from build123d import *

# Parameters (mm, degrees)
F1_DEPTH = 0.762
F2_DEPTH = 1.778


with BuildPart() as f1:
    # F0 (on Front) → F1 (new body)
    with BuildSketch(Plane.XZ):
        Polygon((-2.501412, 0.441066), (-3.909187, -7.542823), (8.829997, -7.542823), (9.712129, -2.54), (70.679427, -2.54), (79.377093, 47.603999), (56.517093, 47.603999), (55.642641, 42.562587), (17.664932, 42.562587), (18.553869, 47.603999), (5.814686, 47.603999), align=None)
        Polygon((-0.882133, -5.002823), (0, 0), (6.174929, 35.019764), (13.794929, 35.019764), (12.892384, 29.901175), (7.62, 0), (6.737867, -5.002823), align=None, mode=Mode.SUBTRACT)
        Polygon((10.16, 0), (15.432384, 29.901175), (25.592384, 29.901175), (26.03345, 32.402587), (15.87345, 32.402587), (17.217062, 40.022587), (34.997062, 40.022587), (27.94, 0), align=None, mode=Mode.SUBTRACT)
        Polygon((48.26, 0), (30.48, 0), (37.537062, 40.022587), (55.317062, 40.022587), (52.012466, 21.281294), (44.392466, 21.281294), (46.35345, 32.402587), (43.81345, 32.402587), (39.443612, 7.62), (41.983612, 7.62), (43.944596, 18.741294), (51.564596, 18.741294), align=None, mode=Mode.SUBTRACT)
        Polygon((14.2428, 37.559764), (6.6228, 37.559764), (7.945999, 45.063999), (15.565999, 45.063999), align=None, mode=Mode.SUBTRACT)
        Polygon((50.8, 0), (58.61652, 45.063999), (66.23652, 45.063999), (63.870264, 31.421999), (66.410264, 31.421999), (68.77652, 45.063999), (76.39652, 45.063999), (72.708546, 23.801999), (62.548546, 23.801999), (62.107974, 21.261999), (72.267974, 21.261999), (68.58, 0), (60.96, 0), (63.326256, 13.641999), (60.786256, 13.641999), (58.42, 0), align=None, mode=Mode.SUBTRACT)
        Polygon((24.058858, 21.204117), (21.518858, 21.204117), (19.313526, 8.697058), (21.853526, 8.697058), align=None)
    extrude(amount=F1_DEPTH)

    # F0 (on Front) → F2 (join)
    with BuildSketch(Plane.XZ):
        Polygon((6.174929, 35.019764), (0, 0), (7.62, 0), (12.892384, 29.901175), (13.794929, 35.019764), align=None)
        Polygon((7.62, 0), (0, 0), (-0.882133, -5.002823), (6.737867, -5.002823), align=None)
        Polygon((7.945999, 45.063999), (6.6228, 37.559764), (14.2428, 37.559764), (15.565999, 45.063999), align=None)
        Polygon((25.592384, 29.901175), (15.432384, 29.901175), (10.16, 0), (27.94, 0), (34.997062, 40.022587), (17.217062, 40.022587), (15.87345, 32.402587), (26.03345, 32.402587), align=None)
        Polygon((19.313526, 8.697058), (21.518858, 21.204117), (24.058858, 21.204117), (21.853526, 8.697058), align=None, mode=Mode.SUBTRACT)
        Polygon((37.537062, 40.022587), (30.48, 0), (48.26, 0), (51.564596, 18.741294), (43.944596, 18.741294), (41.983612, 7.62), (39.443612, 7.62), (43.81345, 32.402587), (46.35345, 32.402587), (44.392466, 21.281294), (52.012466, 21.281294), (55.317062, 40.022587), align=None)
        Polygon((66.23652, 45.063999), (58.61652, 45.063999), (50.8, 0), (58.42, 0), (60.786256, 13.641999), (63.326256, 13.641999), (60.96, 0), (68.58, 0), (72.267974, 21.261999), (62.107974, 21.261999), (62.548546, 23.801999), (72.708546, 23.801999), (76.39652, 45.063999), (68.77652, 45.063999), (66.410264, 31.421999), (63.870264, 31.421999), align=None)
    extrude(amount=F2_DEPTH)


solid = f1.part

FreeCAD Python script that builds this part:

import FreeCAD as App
import Part
import Sketcher
from FreeCAD import Vector
Q = App.Units.Quantity


def add_polygon(sketch, points):
    """Adds a closed chain of lines whose ends are joined by coincident constraints."""
    first, n = sketch.GeometryCount, len(points)
    for a, b in zip(points, points[1:] + points[:1]):
        sketch.addGeometry(Part.LineSegment(App.Vector(*a, 0), App.Vector(*b, 0)), False)
    for i in range(n):
        sketch.addConstraint(Sketcher.Constraint("Coincident", first + i, 2, first + (i + 1) % n, 1))

doc = App.newDocument("Part")
body = doc.addObject("PartDesign::Body", "Body")
body.AllowCompound = True

sketch1 = body.newObject("Sketcher::SketchObject", "Sketch")
sketch1.AttachmentSupport = (doc.getObject("XZ_Plane"), [""])
sketch1.MapMode = "FlatFace"
add_polygon(sketch1, [(-2.5, 0.4), (-3.9, -7.5), (8.8, -7.5), (9.7, -2.5), (70.7, -2.5), (79.4, 47.6), (56.5, 47.6), (55.6, 42.6), (17.7, 42.6), (18.6, 47.6), (5.8, 47.6)])
add_polygon(sketch1, [(6.7, -5), (-0.9, -5), (0, 0), (6.2, 35), (13.8, 35), (12.9, 29.9), (7.6, 0)])
add_polygon(sketch1, [(27.9, 0), (10.2, 0), (15.4, 29.9), (25.6, 29.9), (26, 32.4), (15.9, 32.4), (17.2, 40), (35, 40)])
add_polygon(sketch1, [(51.6, 18.7), (48.3, 0), (30.5, 0), (37.5, 40), (55.3, 40), (52, 21.3), (44.4, 21.3), (46.4, 32.4), (43.8, 32.4), (39.4, 7.6), (42, 7.6), (43.9, 18.7)])
add_polygon(sketch1, [(15.6, 45.1), (14.2, 37.6), (6.6, 37.6), (7.9, 45.1)])
add_polygon(sketch1, [(58.4, 0), (50.8, 0), (58.6, 45.1), (66.2, 45.1), (63.9, 31.4), (66.4, 31.4), (68.8, 45.1), (76.4, 45.1), (72.7, 23.8), (62.5, 23.8), (62.1, 21.3), (72.3, 21.3), (68.6, 0), (61, 0), (63.3, 13.6), (60.8, 13.6)])
add_polygon(sketch1, [(24.1, 21.2), (21.5, 21.2), (19.3, 8.7), (21.9, 8.7)])
sketch1.addConstraint([
    Sketcher.Constraint("Horizontal", 1),
    Sketcher.Constraint("Horizontal", 3),
    Sketcher.Constraint("Horizontal", 5),
    Sketcher.Constraint("Horizontal", 7),
    Sketcher.Constraint("Horizontal", 9),
    Sketcher.Constraint("Horizontal", 11),
    Sketcher.Constraint("Horizontal", 14),
    Sketcher.Constraint("Horizontal", 18),
    Sketcher.Constraint("Horizontal", 20),
    Sketcher.Constraint("Horizontal", 22),
    Sketcher.Constraint("Horizontal", 24),
    Sketcher.Constraint("Horizontal", 27),
    Sketcher.Constraint("Horizontal", 29),
    Sketcher.Constraint("Horizontal", 31),
    Sketcher.Constraint("Horizontal", 33),
    Sketcher.Constraint("Horizontal", 35),
    Sketcher.Constraint("Horizontal", 37),
    Sketcher.Constraint("Horizontal", 39),
    Sketcher.Constraint("Horizontal", 41),
    Sketcher.Constraint("Horizontal", 42),
    Sketcher.Constraint("Horizontal", 44),
    Sketcher.Constraint("Horizontal", 46),
    Sketcher.Constraint("Horizontal", 48),
    Sketcher.Constraint("Horizontal", 50),
    Sketcher.Constraint("Horizontal", 52),
    Sketcher.Constraint("Horizontal", 54),
    Sketcher.Constraint("Horizontal", 56),
    Sketcher.Constraint("Horizontal", 58),
    Sketcher.Constraint("Horizontal", 60),
    Sketcher.Constraint("Coincident", 12, 2, -1, 1),
    Sketcher.Constraint("PointOnObject", 16, 2, -1),
    Sketcher.Constraint("PointOnObject", 18, 2, -1),
    Sketcher.Constraint("PointOnObject", 26, 2, -1),
    Sketcher.Constraint("PointOnObject", 42, 2, -1),
    Sketcher.Constraint("PointOnObject", 53, 2, -1),
    Sketcher.Constraint("Parallel", 0, 2),
    Sketcher.Constraint("Parallel", 4, 6),
    Sketcher.Constraint("Parallel", 2, 8),
    Sketcher.Constraint("Parallel", 8, 10),
    Sketcher.Constraint("Parallel", 10, 12),
    Sketcher.Constraint("Parallel", 12, 13),
    Sketcher.Constraint("Parallel", 13, 15),
    Sketcher.Constraint("Parallel", 15, 16),
    Sketcher.Constraint("Parallel", 16, 17),
    Sketcher.Constraint("Parallel", 17, 19),
    Sketcher.Constraint("Parallel", 19, 21),
    Sketcher.Constraint("Parallel", 21, 23),
    Sketcher.Constraint("Parallel", 23, 25),
    Sketcher.Constraint("Parallel", 25, 26),
    Sketcher.Constraint("Parallel", 26, 28),
    Sketcher.Constraint("Parallel", 28, 30),
    Sketcher.Constraint("Parallel", 30, 32),
    Sketcher.Constraint("Parallel", 32, 34),
    Sketcher.Constraint("Parallel", 34, 36),
    Sketcher.Constraint("Parallel", 36, 38),
    Sketcher.Constraint("Parallel", 38, 40),
    Sketcher.Constraint("Parallel", 6, 43),
    Sketcher.Constraint("Parallel", 43, 45),
    Sketcher.Constraint("Parallel", 45, 47),
    Sketcher.Constraint("Parallel", 47, 49),
    Sketcher.Constraint("Parallel", 49, 51),
    Sketcher.Constraint("Parallel", 51, 53),
    Sketcher.Constraint("Parallel", 53, 55),
    Sketcher.Constraint("Parallel", 55, 57),
    Sketcher.Constraint("Parallel", 40, 59),
    Sketcher.Constraint("Parallel", 59, 61),
    Sketcher.Constraint("Horizontal", 5, 2, 8, 2),
    Sketcher.Constraint("Horizontal", 15, 2, 19, 2),
    Sketcher.Constraint("Horizontal", 24, 2, 28, 2),
    Sketcher.Constraint("Horizontal", 22, 2, 32, 2),
    Sketcher.Constraint("Horizontal", 41, 2, 43, 2),
    Sketcher.Constraint("Horizontal", 44, 2, 47, 2),
    Sketcher.Constraint("Equal", 1, 9),
    Sketcher.Constraint("Equal", 20, 22),
    Sketcher.Constraint("Equal", 24, 27),
    Sketcher.Constraint("Equal", 27, 29),
    Sketcher.Constraint("Equal", 14, 31),
    Sketcher.Constraint("Equal", 33, 35),
    Sketcher.Constraint("Equal", 37, 39),
    Sketcher.Constraint("Equal", 41, 42),
    Sketcher.Constraint("Equal", 42, 44),
    Sketcher.Constraint("Equal", 35, 46),
    Sketcher.Constraint("Equal", 44, 48),
    Sketcher.Constraint("Equal", 22, 50),
    Sketcher.Constraint("Equal", 50, 52),
    Sketcher.Constraint("Equal", 48, 54),
    Sketcher.Constraint("Equal", 56, 58),
    Sketcher.Constraint("Equal", 2, 12),
    Sketcher.Constraint("Equal", 26, 30),
    Sketcher.Constraint("Equal", 32, 36),
    Sketcher.Constraint("Equal", 49, 53),
    Sketcher.Constraint("Equal", 47, 55),
    Sketcher.Constraint("DistanceX", 5, 2, 5, 1, Q("0.9 in")),
    Sketcher.Constraint("DistanceX", 11, 2, 11, 1, Q("0.3 in")),
    Sketcher.Constraint("DistanceX", 18, 2, 18, 1, Q("0.7 in")),
    Sketcher.Constraint("DistanceX", 20, 1, 20, 2, Q("0.4 in")),
    Sketcher.Constraint("DistanceX", 33, 2, 33, 1, Q("0.1 in")),
    Sketcher.Constraint("DistanceX", -1, 1, 42, 2, Q("2 in")),
    Sketcher.Constraint("Angle", 0, Q("-100 deg")),
    Sketcher.Constraint("Distance", 2, Q("0.2 in")),
    Sketcher.Constraint("Distance", 13, Q("1.4 in")),
    Sketcher.Constraint("Distance", 21, Q("0.1 in")),
    Sketcher.Constraint("Distance", 25, Q("1.6 in")),
    Sketcher.Constraint("Distance", 38, Q("0.3 in")),
    Sketcher.Constraint("Distance", 59, Q("0.5 in")),
    Sketcher.Constraint("DistanceY", 2, 2, -1, 1, Q("0.1 in")),
    Sketcher.Constraint("DistanceX", -1, 1, 18, 2, Q("0.4 in")),
    Sketcher.Constraint("DistanceX", -1, 1, 26, 2, Q("1.9 in")),
    Sketcher.Constraint("DistanceY", -1, 1, 34, 2, Q("0.3 in")),
    Sketcher.Constraint("DistanceX", 3, 1, 3, 2, Q("60.967298 mm")),
    Sketcher.Constraint("DistanceX", 7, 2, 7, 1, Q("37.977709 mm")),
    Sketcher.Constraint("DistanceY", -1, 1, 4, 2, Q("47.603999 mm")),
    Sketcher.Constraint("DistanceX", -1, 1, 38, 2, Q("14.2428 mm")),
    Sketcher.Constraint("DistanceY", -1, 1, 40, 2, Q("45.063999 mm")),
    Sketcher.Constraint("DistanceY", -1, 1, 45, 2, Q("31.421999 mm")),
    Sketcher.Constraint("DistanceY", -1, 1, 49, 2, Q("23.801999 mm")),
    Sketcher.Constraint("Distance", 6, Q("5.116689 mm")),
    Sketcher.Constraint("Distance", 26, Q("19.030409 mm")),
    Sketcher.Constraint("DistanceX", 1, 1, 1, 2, Q("12.739184 mm")),
    Sketcher.Constraint("DistanceX", -1, 1, 2, 2, Q("9.712129 mm")),
    Sketcher.Constraint("DistanceX", -1, 1, 58, 2, Q("21.518858 mm")),
    Sketcher.Constraint("Distance", 0, Q("8.107053 mm")),
    Sketcher.Constraint("DistanceY", -1, 1, 58, 2, Q("21.204117 mm")),
])
pad1 = body.newObject("PartDesign::Pad", "Pad")
pad1.Profile = sketch1
pad1.Length = Q("0.03 in")

sketch2 = body.newObject("Sketcher::SketchObject", "Sketch001")
sketch2.AttachmentSupport = (doc.getObject("XZ_Plane"), [""])
sketch2.MapMode = "FlatFace"
add_polygon(sketch2, [(6.2, 35), (0, 0), (-0.9, -5), (6.7, -5), (7.6, 0), (12.9, 29.9), (13.8, 35)])
add_polygon(sketch2, [(7.9, 45.1), (6.6, 37.6), (14.2, 37.6), (15.6, 45.1)])
add_polygon(sketch2, [(25.6, 29.9), (15.4, 29.9), (10.2, 0), (27.9, 0), (35, 40), (17.2, 40), (15.9, 32.4), (26, 32.4)])
add_polygon(sketch2, [(21.9, 8.7), (19.3, 8.7), (21.5, 21.2), (24.1, 21.2)])
add_polygon(sketch2, [(37.5, 40), (30.5, 0), (48.3, 0), (51.6, 18.7), (43.9, 18.7), (42, 7.6), (39.4, 7.6), (43.8, 32.4), (46.4, 32.4), (44.4, 21.3), (52, 21.3), (55.3, 40)])
add_polygon(sketch2, [(66.2, 45.1), (58.6, 45.1), (50.8, 0), (58.4, 0), (60.8, 13.6), (63.3, 13.6), (61, 0), (68.6, 0), (72.3, 21.3), (62.1, 21.3), (62.5, 23.8), (72.7, 23.8), (76.4, 45.1), (68.8, 45.1), (66.4, 31.4), (63.9, 31.4)])
sketch2.addConstraint([
    Sketcher.Constraint("Horizontal", 2),
    Sketcher.Constraint("Horizontal", 6),
    Sketcher.Constraint("Horizontal", 8),
    Sketcher.Constraint("Horizontal", 10),
    Sketcher.Constraint("Horizontal", 11),
    Sketcher.Constraint("Horizontal", 13),
    Sketcher.Constraint("Horizontal", 15),
    Sketcher.Constraint("Horizontal", 17),
    Sketcher.Constraint("Horizontal", 19),
    Sketcher.Constraint("Horizontal", 21),
    Sketcher.Constraint("Horizontal", 24),
    Sketcher.Constraint("Horizontal", 26),
    Sketcher.Constraint("Horizontal", 28),
    Sketcher.Constraint("Horizontal", 30),
    Sketcher.Constraint("Horizontal", 32),
    Sketcher.Constraint("Horizontal", 34),
    Sketcher.Constraint("Horizontal", 35),
    Sketcher.Constraint("Horizontal", 37),
    Sketcher.Constraint("Horizontal", 39),
    Sketcher.Constraint("Horizontal", 41),
    Sketcher.Constraint("Horizontal", 43),
    Sketcher.Constraint("Horizontal", 45),
    Sketcher.Constraint("Horizontal", 47),
    Sketcher.Constraint("Horizontal", 49),
    Sketcher.Constraint("Coincident", 0, 2, -1, 1),
    Sketcher.Constraint("PointOnObject", 3, 2, -1),
    Sketcher.Constraint("PointOnObject", 12, 2, -1),
    Sketcher.Constraint("PointOnObject", 23, 2, -1),
    Sketcher.Constraint("PointOnObject", 36, 2, -1),
    Sketcher.Constraint("PointOnObject", 40, 2, -1),
    Sketcher.Constraint("Parallel", 0, 1),
    Sketcher.Constraint("Parallel", 1, 3),
    Sketcher.Constraint("Parallel", 3, 4),
    Sketcher.Constraint("Parallel", 4, 5),
    Sketcher.Constraint("Parallel", 5, 7),
    Sketcher.Constraint("Parallel", 7, 9),
    Sketcher.Constraint("Parallel", 9, 12),
    Sketcher.Constraint("Parallel", 12, 14),
    Sketcher.Constraint("Parallel", 14, 16),
    Sketcher.Constraint("Parallel", 16, 18),
    Sketcher.Constraint("Parallel", 18, 20),
    Sketcher.Constraint("Parallel", 20, 22),
    Sketcher.Constraint("Parallel", 22, 23),
    Sketcher.Constraint("Parallel", 23, 25),
    Sketcher.Constraint("Parallel", 25, 27),
    Sketcher.Constraint("Parallel", 27, 29),
    Sketcher.Constraint("Parallel", 29, 31),
    Sketcher.Constraint("Parallel", 31, 33),
    Sketcher.Constraint("Parallel", 36, 38),
    Sketcher.Constraint("Parallel", 38, 40),
    Sketcher.Constraint("Parallel", 40, 42),
    Sketcher.Constraint("Parallel", 42, 44),
    Sketcher.Constraint("Parallel", 44, 46),
    Sketcher.Constraint("Parallel", 46, 48),
    Sketcher.Constraint("Parallel", 48, 50),
    Sketcher.Constraint("Horizontal", 4, 2, 11, 2),
    Sketcher.Constraint("Horizontal", 17, 2, 29, 2),
    Sketcher.Constraint("Horizontal", 15, 2, 33, 2),
    Sketcher.Constraint("Horizontal", 10, 2, 35, 2),
    Sketcher.Constraint("Horizontal", 35, 2, 46, 2),
    Sketcher.Constraint("Equal", 6, 8),
    Sketcher.Constraint("Equal", 13, 15),
    Sketcher.Constraint("Equal", 15, 24),
    Sketcher.Constraint("Equal", 10, 26),
    Sketcher.Constraint("Equal", 21, 28),
    Sketcher.Constraint("Equal", 28, 30),
    Sketcher.Constraint("Equal", 26, 32),
    Sketcher.Constraint("Equal", 32, 35),
    Sketcher.Constraint("Equal", 35, 37),
    Sketcher.Constraint("Equal", 30, 39),
    Sketcher.Constraint("Equal", 37, 41),
    Sketcher.Constraint("Equal", 17, 43),
    Sketcher.Constraint("Equal", 43, 45),
    Sketcher.Constraint("Equal", 41, 47),
    Sketcher.Constraint("Equal", 27, 31),
    Sketcher.Constraint("Equal", 25, 33),
    Sketcher.Constraint("Equal", 42, 46),
    Sketcher.Constraint("Equal", 40, 48),
    Sketcher.Constraint("DistanceX", 2, 1, 2, 2, Q("0.3 in")),
    Sketcher.Constraint("DistanceX", 11, 2, 11, 1, Q("0.4 in")),
    Sketcher.Constraint("DistanceX", 13, 1, 13, 2, Q("0.7 in")),
    Sketcher.Constraint("DistanceX", 19, 2, 19, 1, Q("0.1 in")),
    Sketcher.Constraint("DistanceX", -1, 1, 36, 2, Q("2 in")),
    Sketcher.Constraint("Angle", 0, Q("-100 deg")),
    Sketcher.Constraint("Distance", 0, Q("1.4 in")),
    Sketcher.Constraint("Distance", 1, Q("0.2 in")),
    Sketcher.Constraint("Distance", 7, Q("0.3 in")),
    Sketcher.Constraint("Distance", 14, Q("1.6 in")),
    Sketcher.Constraint("Distance", 18, Q("0.1 in")),
    Sketcher.Constraint("Distance", 20, Q("0.5 in")),
    Sketcher.Constraint("DistanceX", -1, 1, 12, 2, Q("0.4 in")),
    Sketcher.Constraint("DistanceX", -1, 1, 23, 2, Q("1.2 in")),
    Sketcher.Constraint("DistanceY", -1, 1, 27, 2, Q("0.3 in")),
    Sketcher.Constraint("DistanceY", 6, 2, 7, 2, Q("0.1 in")),
    Sketcher.Constraint("DistanceY", 26, 2, 31, 2, Q("0.1 in")),
    Sketcher.Constraint("DistanceY", 39, 2, 42, 2, Q("0.3 in")),
    Sketcher.Constraint("DistanceY", 43, 2, 44, 2, Q("0.1 in")),
    Sketcher.Constraint("DistanceX", 33, 2, 35, 2, Q("0.1298999 in")),
    Sketcher.Constraint("DistanceX", -1, 1, 7, 2, Q("6.6228 mm")),
    Sketcher.Constraint("DistanceX", -1, 1, 20, 2, Q("21.518858 mm")),
    Sketcher.Constraint("DistanceY", 2, 2, 19, 2, Q("13.699881 mm")),
])
pad2 = body.newObject("PartDesign::Pad", "Pad001")
pad2.Profile = sketch2
pad2.Length = Q("0.07 in")

doc.recompute()
